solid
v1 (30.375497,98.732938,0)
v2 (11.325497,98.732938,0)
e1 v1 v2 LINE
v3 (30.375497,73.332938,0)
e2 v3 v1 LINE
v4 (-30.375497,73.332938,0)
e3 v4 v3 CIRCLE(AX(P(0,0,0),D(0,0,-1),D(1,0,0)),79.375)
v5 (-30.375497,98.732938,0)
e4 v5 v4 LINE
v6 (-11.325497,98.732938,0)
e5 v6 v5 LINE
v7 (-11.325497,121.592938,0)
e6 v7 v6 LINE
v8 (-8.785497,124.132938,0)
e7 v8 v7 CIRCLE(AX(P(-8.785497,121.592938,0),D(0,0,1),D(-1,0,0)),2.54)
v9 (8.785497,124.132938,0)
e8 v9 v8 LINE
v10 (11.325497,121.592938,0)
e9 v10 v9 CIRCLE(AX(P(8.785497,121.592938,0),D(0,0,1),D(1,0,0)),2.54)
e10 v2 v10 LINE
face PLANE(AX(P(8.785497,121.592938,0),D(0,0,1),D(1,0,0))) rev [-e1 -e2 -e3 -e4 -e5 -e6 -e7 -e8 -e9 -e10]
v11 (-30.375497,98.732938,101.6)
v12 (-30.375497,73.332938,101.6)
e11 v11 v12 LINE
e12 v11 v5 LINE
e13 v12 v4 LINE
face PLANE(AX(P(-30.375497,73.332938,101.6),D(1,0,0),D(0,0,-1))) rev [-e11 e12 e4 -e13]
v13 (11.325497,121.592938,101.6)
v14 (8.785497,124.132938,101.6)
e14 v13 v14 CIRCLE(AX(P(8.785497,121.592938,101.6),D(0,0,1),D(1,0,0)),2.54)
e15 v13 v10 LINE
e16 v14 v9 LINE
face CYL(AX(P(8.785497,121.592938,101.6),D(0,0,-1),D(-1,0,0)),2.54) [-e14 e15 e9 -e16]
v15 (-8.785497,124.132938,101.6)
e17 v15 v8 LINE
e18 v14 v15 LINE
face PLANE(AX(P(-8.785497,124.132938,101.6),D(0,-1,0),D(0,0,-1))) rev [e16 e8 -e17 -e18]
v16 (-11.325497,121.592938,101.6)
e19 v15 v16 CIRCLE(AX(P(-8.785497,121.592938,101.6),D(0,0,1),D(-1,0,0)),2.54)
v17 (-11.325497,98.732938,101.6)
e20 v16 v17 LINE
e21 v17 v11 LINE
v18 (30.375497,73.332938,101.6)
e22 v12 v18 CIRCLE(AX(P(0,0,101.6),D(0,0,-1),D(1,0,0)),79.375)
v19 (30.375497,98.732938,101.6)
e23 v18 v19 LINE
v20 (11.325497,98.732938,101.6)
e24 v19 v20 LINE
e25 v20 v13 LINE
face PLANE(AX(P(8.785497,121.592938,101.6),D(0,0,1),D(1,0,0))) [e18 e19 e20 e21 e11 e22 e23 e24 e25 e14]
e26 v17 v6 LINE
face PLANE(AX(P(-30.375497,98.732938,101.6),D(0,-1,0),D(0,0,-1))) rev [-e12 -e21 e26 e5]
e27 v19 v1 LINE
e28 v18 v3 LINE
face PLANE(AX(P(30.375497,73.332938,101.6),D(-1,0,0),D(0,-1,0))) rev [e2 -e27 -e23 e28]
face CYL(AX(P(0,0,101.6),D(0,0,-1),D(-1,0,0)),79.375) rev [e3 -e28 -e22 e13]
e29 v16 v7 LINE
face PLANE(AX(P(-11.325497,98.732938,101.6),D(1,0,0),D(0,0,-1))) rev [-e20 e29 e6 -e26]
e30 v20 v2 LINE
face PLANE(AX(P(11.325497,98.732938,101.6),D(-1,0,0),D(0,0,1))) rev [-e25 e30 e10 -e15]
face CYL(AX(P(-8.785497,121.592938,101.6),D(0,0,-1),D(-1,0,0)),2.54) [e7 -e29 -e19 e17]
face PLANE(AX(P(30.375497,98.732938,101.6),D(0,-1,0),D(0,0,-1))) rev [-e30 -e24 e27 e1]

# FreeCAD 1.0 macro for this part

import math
import FreeCAD as App
import Part
import Sketcher

V = App.Vector
Q = App.Units.Quantity

doc = App.newDocument("Part")
params = doc.addObject("Spreadsheet::Sheet", "Params")
for row, (alias, value) in enumerate([
    ("sketch1_radius", "0.1 in"),
    ("sketch1_height", "1 in"),
    ("sketch1_height2", "0.9 in"),
    ("sketch1_radius2", "3.125 in"),
    ("sketch1_width", "0.75 in"),
    ("pad1_length", "4 in"),
], start=1):
    params.set(f"A{row}", alias)
    params.set(f"B{row}", "=" + value)
    params.setAlias(f"B{row}", alias)

body = doc.addObject("PartDesign::Body", "Body")

# Sketch on XY plane
sketch1 = body.newObject("Sketcher::SketchObject", "Sketch")
sketch1.AttachmentSupport = (doc.getObject("XY_Plane"), [""])
sketch1.MapMode = "FlatFace"
sketch1.addGeometry([
    Part.LineSegment(V(-11.3, 98.7, 0), V(-30.4, 98.7, 0)),  # 0
    Part.LineSegment(V(-30.4, 98.7, 0), V(-30.4, 73.3, 0)),  # 1
    Part.ArcOfCircle(Part.Circle(V(0, 0, 0), V(0, 0, 1), 79.4), math.radians(67), math.radians(113)),  # 2
    Part.LineSegment(V(30.4, 73.3, 0), V(30.4, 98.7, 0)),  # 3
    Part.LineSegment(V(30.4, 98.7, 0), V(11.3, 98.7, 0)),  # 4
    Part.LineSegment(V(11.3, 98.7, 0), V(11.3, 121.6, 0)),  # 5
    Part.ArcOfCircle(Part.Circle(V(8.8, 121.6, 0), V(0, 0, 1), 2.5), math.radians(0), math.radians(90)),  # 6
    Part.LineSegment(V(8.8, 124.1, 0), V(-8.8, 124.1, 0)),  # 7
    Part.ArcOfCircle(Part.Circle(V(-8.8, 121.6, 0), V(0, 0, 1), 2.5), math.radians(90), math.radians(180)),  # 8
    Part.LineSegment(V(-11.3, 121.6, 0), V(-11.3, 98.7, 0)),  # 9
], False)
sketch1.addConstraint([
    Sketcher.Constraint("Coincident", 0, 2, 1, 1),
    Sketcher.Constraint("Coincident", 1, 2, 2, 2),
    Sketcher.Constraint("Coincident", 2, 1, 3, 1),
    Sketcher.Constraint("Coincident", 3, 2, 4, 1),
    Sketcher.Constraint("Coincident", 4, 2, 5, 1),
    Sketcher.Constraint("Tangent", 5, 2, 6, 1),
    Sketcher.Constraint("Tangent", 6, 2, 7, 1),
    Sketcher.Constraint("Tangent", 7, 2, 8, 1),
    Sketcher.Constraint("Tangent", 8, 2, 9, 1),
    Sketcher.Constraint("Coincident", 9, 2, 0, 1),
    Sketcher.Constraint("Horizontal", 0),
    Sketcher.Constraint("Vertical", 1),
    Sketcher.Constraint("Vertical", 3),
    Sketcher.Constraint("Horizontal", 4),
    Sketcher.Constraint("Vertical", 5),
    Sketcher.Constraint("Horizontal", 7),
    Sketcher.Constraint("Vertical", 9),
    Sketcher.Constraint("Coincident", 2, 3, -1, 1),
    Sketcher.Constraint("Equal", 6, 8),
    Sketcher.Constraint("Symmetric", 0, 2, 3, 2, -2),
    Sketcher.Constraint("Equal", 0, 4),
    Sketcher.Constraint("Radius", 6, Q("0.1 in")),
    Sketcher.Constraint("DistanceY", 1, 2, 1, 1, Q("1 in")),
    Sketcher.Constraint("DistanceY", 5, 1, 5, 2, Q("0.9 in")),
    Sketcher.Constraint("Radius", 2, Q("3.125 in")),
    Sketcher.Constraint("DistanceX", 0, 2, 0, 1, Q("0.75 in")),
    Sketcher.Constraint("DistanceX", 7, 2, 7, 1, Q("17.570995 mm")),
])
sketch1.setExpression("Constraints[21]", "Params.sketch1_radius")
sketch1.setExpression("Constraints[22]", "Params.sketch1_height")
sketch1.setExpression("Constraints[23]", "Params.sketch1_height2")
sketch1.setExpression("Constraints[24]", "Params.sketch1_radius2")
sketch1.setExpression("Constraints[25]", "Params.sketch1_width")
pad1 = body.newObject("PartDesign::Pad", "Pad")
pad1.Profile = sketch1
pad1.setExpression("Length", "Params.pad1_length")

doc.recompute()
